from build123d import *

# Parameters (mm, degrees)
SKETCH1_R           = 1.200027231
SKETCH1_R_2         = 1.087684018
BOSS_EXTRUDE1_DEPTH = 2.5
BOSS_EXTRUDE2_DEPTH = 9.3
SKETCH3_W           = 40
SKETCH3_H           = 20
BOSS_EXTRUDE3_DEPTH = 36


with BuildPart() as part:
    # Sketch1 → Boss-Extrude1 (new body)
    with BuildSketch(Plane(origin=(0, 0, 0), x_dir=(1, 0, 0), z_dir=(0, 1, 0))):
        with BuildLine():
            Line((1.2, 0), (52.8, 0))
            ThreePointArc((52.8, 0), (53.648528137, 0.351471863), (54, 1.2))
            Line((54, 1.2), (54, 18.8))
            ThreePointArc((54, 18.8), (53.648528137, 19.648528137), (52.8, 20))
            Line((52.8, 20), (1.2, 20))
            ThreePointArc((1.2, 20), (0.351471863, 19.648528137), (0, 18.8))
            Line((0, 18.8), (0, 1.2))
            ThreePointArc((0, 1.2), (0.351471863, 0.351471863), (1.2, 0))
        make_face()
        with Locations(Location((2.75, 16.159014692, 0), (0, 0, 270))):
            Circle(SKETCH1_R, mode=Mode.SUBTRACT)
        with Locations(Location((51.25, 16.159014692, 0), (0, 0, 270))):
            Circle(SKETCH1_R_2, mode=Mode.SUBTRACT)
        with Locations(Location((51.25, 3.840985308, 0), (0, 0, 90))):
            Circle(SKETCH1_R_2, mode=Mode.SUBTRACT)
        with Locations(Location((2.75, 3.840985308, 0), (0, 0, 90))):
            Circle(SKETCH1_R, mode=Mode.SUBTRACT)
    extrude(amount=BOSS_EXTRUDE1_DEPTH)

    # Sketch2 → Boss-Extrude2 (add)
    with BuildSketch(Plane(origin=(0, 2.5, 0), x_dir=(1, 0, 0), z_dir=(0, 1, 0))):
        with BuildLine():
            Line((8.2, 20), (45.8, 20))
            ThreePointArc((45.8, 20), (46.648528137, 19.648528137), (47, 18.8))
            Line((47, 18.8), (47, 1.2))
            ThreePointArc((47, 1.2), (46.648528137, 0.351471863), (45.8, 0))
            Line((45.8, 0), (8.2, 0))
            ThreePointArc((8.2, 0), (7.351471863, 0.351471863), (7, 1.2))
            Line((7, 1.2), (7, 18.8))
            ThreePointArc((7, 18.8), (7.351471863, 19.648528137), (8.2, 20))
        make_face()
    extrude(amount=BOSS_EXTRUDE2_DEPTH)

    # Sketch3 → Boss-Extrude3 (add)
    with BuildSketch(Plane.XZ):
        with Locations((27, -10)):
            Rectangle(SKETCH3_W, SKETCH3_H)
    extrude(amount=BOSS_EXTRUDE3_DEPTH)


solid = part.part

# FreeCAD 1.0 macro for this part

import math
import FreeCAD as App
import Part
import Sketcher


def add_polygon(sketch, points):
    """Adds a closed chain of lines whose ends are joined by coincident constraints."""
    first, n = sketch.GeometryCount, len(points)
    for a, b in zip(points, points[1:] + points[:1]):
        sketch.addGeometry(Part.LineSegment(App.Vector(*a, 0), App.Vector(*b, 0)), False)
    for i in range(n):
        sketch.addConstraint(Sketcher.Constraint("Coincident", first + i, 2, first + (i + 1) % n, 1))

doc = App.newDocument("Part")
body = doc.addObject("PartDesign::Body", "Body")

sketch1 = body.newObject("Sketcher::SketchObject", "Sketch")
sketch1.AttachmentSupport = (doc.getObject("XZ_Plane"), [""])
sketch1.MapMode = "FlatFace"
sketch1.addGeometry([
    Part.LineSegment(App.Vector(1.2, 0, 0), App.Vector(52.8, 0, 0)),
    Part.ArcOfCircle(Part.Circle(App.Vector(52.8, -1.2, 0), App.Vector(0, 0, 1), 1.2), math.radians(0), math.radians(90)),
    Part.LineSegment(App.Vector(54, -1.2, 0), App.Vector(54, -18.8, 0)),
    Part.ArcOfCircle(Part.Circle(App.Vector(52.8, -18.8, 0), App.Vector(0, 0, 1), 1.2), math.radians(-90), math.radians(0)),
    Part.LineSegment(App.Vector(52.8, -20, 0), App.Vector(1.2, -20, 0)),
    Part.ArcOfCircle(Part.Circle(App.Vector(1.2, -18.8, 0), App.Vector(0, 0, 1), 1.2), math.radians(-180), math.radians(-90)),
    Part.LineSegment(App.Vector(0, -18.8, 0), App.Vector(0, -1.2, 0)),
    Part.ArcOfCircle(Part.Circle(App.Vector(1.2, -1.2, 0), App.Vector(0, 0, 1), 1.2), math.radians(90), math.radians(180)),
    Part.Circle(App.Vector(2.75, -3.840985, 0), App.Vector(0, 0, 1), 1.200027),
    Part.Circle(App.Vector(51.25, -3.840985, 0), App.Vector(0, 0, 1), 1.087684),
    Part.Circle(App.Vector(2.75, -16.159015, 0), App.Vector(0, 0, 1), 1.200027),
    Part.Circle(App.Vector(51.25, -16.159015, 0), App.Vector(0, 0, 1), 1.087684),
], False)
sketch1.addConstraint([
    Sketcher.Constraint("Tangent", 0, 2, 1, 2),
    Sketcher.Constraint("Tangent", 1, 1, 2, 1),
    Sketcher.Constraint("Tangent", 2, 2, 3, 2),
    Sketcher.Constraint("Tangent", 3, 1, 4, 1),
    Sketcher.Constraint("Tangent", 4, 2, 5, 2),
    Sketcher.Constraint("Tangent", 5, 1, 6, 1),
    Sketcher.Constraint("Tangent", 6, 2, 7, 2),
    Sketcher.Constraint("Tangent", 7, 1, 0, 1),
    Sketcher.Constraint("Horizontal", 0),
    Sketcher.Constraint("Vertical", 2),
    Sketcher.Constraint("Horizontal", 4),
    Sketcher.Constraint("Vertical", 6),
    Sketcher.Constraint("Equal", 1, 3),
    Sketcher.Constraint("Equal", 3, 5),
    Sketcher.Constraint("Equal", 5, 7),
    Sketcher.Constraint("Equal", 8, 10),
    Sketcher.Constraint("Equal", 9, 11),
    Sketcher.Constraint("PointOnObject", 0, 2, -1),
    Sketcher.Constraint("PointOnObject", 5, 1, -2),
    Sketcher.Constraint("Horizontal", 8, 3, 9, 3),
    Sketcher.Constraint("Horizontal", 10, 3, 11, 3),
    Sketcher.Constraint("Vertical", 8, 3, 10, 3),
    Sketcher.Constraint("Vertical", 9, 3, 11, 3),
    Sketcher.Constraint("Radius", 1, 1.2),
    Sketcher.Constraint("DistanceX", 0, 1, 0, 2, 51.6),
    Sketcher.Constraint("DistanceY", 2, 2, 2, 1, 17.6),
    Sketcher.Constraint("DistanceX", 8, 3, 9, 3, 48.5),
    Sketcher.Constraint("Diameter", 9, 2.175368),
    Sketcher.Constraint("DistanceX", -1, 1, 8, 3, 2.75),
    Sketcher.Constraint("Diameter", 8, 2.400054),
    Sketcher.Constraint("DistanceY", 10, 3, 8, 3, 12.318029),
    Sketcher.Constraint("DistanceY", 8, 3, -1, 1, 3.840985),
])
pad1 = body.newObject("PartDesign::Pad", "Pad")
pad1.Profile = sketch1
pad1.Length = 2.5
pad1.Reversed = True

sketch2 = body.newObject("Sketcher::SketchObject", "Sketch001")
sketch2.AttachmentSupport = (doc.getObject("XZ_Plane"), [""])
sketch2.MapMode = "FlatFace"
sketch2.AttachmentOffset = App.Placement(App.Vector(0, 0, -2.5), App.Rotation())
sketch2.addGeometry([
    Part.LineSegment(App.Vector(45.8, -20, 0), App.Vector(8.2, -20, 0)),
    Part.ArcOfCircle(Part.Circle(App.Vector(8.2, -18.8, 0), App.Vector(0, 0, 1), 1.2), math.radians(-180), math.radians(-90)),
    Part.LineSegment(App.Vector(7, -18.8, 0), App.Vector(7, -1.2, 0)),
    Part.ArcOfCircle(Part.Circle(App.Vector(8.2, -1.2, 0), App.Vector(0, 0, 1), 1.2), math.radians(90), math.radians(180)),
    Part.LineSegment(App.Vector(8.2, 0, 0), App.Vector(45.8, 0, 0)),
    Part.ArcOfCircle(Part.Circle(App.Vector(45.8, -1.2, 0), App.Vector(0, 0, 1), 1.2), math.radians(0), math.radians(90)),
    Part.LineSegment(App.Vector(47, -1.2, 0), App.Vector(47, -18.8, 0)),
    Part.ArcOfCircle(Part.Circle(App.Vector(45.8, -18.8, 0), App.Vector(0, 0, 1), 1.2), math.radians(-90), math.radians(0)),
], False)
sketch2.addConstraint([
    Sketcher.Constraint("Tangent", 0, 2, 1, 2),
    Sketcher.Constraint("Tangent", 1, 1, 2, 1),
    Sketcher.Constraint("Tangent", 2, 2, 3, 2),
    Sketcher.Constraint("Tangent", 3, 1, 4, 1),
    Sketcher.Constraint("Tangent", 4, 2, 5, 2),
    Sketcher.Constraint("Tangent", 5, 1, 6, 1),
    Sketcher.Constraint("Tangent", 6, 2, 7, 2),
    Sketcher.Constraint("Tangent", 7, 1, 0, 1),
    Sketcher.Constraint("Horizontal", 0),
    Sketcher.Constraint("Vertical", 2),
    Sketcher.Constraint("Horizontal", 4),
    Sketcher.Constraint("Vertical", 6),
    Sketcher.Constraint("Equal", 1, 3),
    Sketcher.Constraint("Equal", 3, 5),
    Sketcher.Constraint("Equal", 5, 7),
    Sketcher.Constraint("PointOnObject", 3, 1, -1),
    Sketcher.Constraint("Radius", 1, 1.2),
    Sketcher.Constraint("DistanceX", 0, 2, 0, 1, 37.6),
    Sketcher.Constraint("DistanceY", 2, 1, 2, 2, 17.6),
    Sketcher.Constraint("DistanceX", -1, 1, 1, 1, 7.0),
])
pad2 = body.newObject("PartDesign::Pad", "Pad001")
pad2.Profile = sketch2
pad2.Length = 9.3
pad2.Reversed = True

sketch3 = body.newObject("Sketcher::SketchObject", "Sketch002")
sketch3.AttachmentSupport = (doc.getObject("XZ_Plane"), [""])
sketch3.MapMode = "FlatFace"
add_polygon(sketch3, [(7, 0), (7, -20), (47, -20), (47, 0)])
sketch3.addConstraint([
    Sketcher.Constraint("Vertical", 0),
    Sketcher.Constraint("Horizontal", 1),
    Sketcher.Constraint("Vertical", 2),
    Sketcher.Constraint("Horizontal", 3),
    Sketcher.Constraint("PointOnObject", 2, 2, -1),
    Sketcher.Constraint("DistanceX", 1, 1, 1, 2, 40.0),
    Sketcher.Constraint("DistanceY", 0, 2, 0, 1, 20.0),
    Sketcher.Constraint("DistanceX", -1, 1, 0, 2, 7.0),
])
pad3 = body.newObject("PartDesign::Pad", "Pad002")
pad3.Profile = sketch3
pad3.Length = 36

doc.recompute()
